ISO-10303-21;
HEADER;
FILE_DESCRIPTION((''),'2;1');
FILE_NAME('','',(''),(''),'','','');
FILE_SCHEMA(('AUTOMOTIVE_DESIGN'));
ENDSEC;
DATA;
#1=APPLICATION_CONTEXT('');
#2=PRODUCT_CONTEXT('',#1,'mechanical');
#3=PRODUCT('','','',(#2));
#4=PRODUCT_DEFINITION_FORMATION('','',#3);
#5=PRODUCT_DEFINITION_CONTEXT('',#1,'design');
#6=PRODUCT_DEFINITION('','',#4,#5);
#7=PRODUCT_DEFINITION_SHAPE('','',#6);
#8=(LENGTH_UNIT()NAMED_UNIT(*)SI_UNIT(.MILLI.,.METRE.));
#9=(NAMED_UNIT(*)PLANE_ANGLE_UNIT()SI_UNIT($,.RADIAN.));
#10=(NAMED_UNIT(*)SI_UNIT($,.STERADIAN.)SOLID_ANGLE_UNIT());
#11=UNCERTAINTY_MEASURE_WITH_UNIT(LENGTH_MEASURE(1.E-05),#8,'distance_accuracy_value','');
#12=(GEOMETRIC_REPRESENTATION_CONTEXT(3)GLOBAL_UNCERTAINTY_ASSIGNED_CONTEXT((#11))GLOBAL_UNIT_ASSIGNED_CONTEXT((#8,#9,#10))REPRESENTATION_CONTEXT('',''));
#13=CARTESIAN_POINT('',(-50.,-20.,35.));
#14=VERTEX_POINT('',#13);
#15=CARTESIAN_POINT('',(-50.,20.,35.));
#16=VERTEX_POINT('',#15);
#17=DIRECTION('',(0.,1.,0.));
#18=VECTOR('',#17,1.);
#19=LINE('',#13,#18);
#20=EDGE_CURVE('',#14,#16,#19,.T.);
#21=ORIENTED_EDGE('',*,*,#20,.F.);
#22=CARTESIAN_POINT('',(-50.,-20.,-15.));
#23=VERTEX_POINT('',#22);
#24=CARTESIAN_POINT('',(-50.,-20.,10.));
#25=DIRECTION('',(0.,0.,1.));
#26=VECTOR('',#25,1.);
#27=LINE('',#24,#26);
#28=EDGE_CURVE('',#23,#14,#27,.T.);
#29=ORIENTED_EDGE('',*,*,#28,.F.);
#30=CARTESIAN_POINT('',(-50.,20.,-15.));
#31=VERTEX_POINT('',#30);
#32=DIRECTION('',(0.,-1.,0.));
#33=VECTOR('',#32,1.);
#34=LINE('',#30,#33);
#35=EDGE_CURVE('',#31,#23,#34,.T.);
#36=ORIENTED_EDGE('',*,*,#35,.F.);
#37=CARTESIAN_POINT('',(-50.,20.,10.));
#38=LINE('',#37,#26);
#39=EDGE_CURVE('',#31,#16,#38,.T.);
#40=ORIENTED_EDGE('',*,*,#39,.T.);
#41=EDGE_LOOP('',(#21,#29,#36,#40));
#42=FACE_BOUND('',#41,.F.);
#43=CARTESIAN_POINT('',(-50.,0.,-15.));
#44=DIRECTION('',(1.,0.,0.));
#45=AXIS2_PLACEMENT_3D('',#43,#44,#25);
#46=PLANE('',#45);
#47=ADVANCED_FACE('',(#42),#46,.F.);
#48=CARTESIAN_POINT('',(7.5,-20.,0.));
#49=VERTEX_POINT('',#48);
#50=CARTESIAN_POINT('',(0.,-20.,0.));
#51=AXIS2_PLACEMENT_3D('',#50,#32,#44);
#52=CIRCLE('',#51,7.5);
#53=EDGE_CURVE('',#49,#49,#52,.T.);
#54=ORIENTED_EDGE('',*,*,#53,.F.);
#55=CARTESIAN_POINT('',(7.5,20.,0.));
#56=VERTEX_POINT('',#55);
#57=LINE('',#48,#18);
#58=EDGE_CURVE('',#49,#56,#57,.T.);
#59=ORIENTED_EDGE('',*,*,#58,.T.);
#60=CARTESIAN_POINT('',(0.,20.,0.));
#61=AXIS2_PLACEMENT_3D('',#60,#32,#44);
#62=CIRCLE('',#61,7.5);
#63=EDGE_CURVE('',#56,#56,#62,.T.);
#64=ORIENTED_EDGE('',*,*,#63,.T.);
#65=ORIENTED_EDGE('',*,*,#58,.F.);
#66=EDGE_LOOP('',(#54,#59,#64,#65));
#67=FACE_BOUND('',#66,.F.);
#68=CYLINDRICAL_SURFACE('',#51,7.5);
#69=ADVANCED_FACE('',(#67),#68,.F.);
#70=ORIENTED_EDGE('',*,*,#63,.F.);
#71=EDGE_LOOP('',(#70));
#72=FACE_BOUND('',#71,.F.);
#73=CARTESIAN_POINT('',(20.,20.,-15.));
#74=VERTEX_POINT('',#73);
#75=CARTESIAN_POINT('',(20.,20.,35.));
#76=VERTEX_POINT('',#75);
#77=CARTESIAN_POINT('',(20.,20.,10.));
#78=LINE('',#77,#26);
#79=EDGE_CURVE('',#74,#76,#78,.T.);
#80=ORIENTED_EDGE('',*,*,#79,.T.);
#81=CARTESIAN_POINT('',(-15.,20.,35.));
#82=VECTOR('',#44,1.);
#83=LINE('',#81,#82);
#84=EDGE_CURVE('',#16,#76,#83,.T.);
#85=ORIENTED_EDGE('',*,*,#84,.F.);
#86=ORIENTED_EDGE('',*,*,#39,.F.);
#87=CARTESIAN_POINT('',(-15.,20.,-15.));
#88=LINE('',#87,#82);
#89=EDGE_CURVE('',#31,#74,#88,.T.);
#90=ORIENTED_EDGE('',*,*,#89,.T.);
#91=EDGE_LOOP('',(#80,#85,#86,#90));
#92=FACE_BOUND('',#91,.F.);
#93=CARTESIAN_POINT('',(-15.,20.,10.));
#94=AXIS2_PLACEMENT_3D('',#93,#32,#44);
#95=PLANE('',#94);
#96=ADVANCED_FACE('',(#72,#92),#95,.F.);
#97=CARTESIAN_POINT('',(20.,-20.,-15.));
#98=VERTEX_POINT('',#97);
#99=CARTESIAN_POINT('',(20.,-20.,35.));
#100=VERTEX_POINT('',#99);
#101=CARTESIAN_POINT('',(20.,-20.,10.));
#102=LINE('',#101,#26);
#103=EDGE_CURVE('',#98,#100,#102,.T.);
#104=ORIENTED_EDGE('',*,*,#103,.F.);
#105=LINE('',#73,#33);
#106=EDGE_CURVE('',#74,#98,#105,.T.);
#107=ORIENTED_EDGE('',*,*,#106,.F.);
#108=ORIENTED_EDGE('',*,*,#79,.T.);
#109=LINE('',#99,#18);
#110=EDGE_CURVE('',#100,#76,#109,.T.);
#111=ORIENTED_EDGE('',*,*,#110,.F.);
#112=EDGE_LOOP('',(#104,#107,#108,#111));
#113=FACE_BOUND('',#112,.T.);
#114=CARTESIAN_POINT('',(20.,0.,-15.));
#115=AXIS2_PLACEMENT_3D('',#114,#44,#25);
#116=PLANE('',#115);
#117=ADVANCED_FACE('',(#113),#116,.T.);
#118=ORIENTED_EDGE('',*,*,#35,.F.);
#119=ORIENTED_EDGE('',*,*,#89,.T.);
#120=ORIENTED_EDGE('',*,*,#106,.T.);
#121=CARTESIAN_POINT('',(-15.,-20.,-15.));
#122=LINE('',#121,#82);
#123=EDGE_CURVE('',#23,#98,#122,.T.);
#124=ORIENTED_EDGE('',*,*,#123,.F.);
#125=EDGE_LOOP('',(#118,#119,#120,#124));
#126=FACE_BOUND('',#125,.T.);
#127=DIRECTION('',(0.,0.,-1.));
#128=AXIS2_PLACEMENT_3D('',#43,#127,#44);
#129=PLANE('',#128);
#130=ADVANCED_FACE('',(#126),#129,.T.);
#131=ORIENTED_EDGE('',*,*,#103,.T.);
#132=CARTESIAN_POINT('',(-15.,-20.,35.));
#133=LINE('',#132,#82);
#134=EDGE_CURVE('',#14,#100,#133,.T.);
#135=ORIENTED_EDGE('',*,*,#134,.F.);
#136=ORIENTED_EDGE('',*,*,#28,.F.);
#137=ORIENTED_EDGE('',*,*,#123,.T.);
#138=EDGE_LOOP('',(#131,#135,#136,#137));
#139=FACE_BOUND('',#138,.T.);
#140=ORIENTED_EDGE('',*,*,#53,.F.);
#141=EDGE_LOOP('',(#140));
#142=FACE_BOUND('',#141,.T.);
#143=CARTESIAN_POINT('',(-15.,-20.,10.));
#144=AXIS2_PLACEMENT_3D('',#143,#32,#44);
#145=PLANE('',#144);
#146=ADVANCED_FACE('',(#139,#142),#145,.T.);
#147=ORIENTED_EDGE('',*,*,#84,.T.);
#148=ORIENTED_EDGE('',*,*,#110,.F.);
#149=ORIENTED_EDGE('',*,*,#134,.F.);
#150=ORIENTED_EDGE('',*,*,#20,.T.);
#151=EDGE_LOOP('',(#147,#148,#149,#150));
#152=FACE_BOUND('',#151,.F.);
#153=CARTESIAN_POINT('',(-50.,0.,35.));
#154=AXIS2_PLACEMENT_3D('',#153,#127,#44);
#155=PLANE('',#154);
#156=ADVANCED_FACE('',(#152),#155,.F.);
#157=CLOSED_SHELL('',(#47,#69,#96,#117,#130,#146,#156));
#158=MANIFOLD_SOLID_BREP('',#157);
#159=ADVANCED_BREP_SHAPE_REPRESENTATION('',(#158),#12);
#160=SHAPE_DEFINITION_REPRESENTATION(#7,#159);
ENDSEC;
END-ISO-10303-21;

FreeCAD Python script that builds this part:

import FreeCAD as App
import Part
import Sketcher

V = App.Vector


def add_polygon(sketch, points):
    """Adds a closed chain of lines whose ends are joined by coincident constraints."""
    first, n = sketch.GeometryCount, len(points)
    for a, b in zip(points, points[1:] + points[:1]):
        sketch.addGeometry(Part.LineSegment(App.Vector(*a, 0), App.Vector(*b, 0)), False)
    for i in range(n):
        sketch.addConstraint(Sketcher.Constraint("Coincident", first + i, 2, first + (i + 1) % n, 1))

doc = App.newDocument("Part")
params = doc.addObject("Spreadsheet::Sheet", "Params")
for row, (alias, value) in enumerate([
    ("sketch1_width", "70 mm"),
    ("sketch1_height", "50 mm"),
    ("pad1_length", "40 mm"),
    ("sketch2_diameter", "15 mm"),
], start=1):
    params.set(f"A{row}", alias)
    params.set(f"B{row}", "=" + value)
    params.setAlias(f"B{row}", alias)

body = doc.addObject("PartDesign::Body", "Body")

# Sketch on XZ plane
sketch1 = body.newObject("Sketcher::SketchObject", "Sketch")
sketch1.AttachmentSupport = (doc.getObject("XZ_Plane"), [""])
sketch1.MapMode = "FlatFace"
add_polygon(sketch1, [(-50, 35), (-50, -15), (20, -15), (20, 35)])  # lines 0-3
sketch1.addConstraint([
    Sketcher.Constraint("Vertical", 0),
    Sketcher.Constraint("Horizontal", 1),
    Sketcher.Constraint("Vertical", 2),
    Sketcher.Constraint("Horizontal", 3),
    Sketcher.Constraint("DistanceX", 1, 1, 1, 2, 70.0),
    Sketcher.Constraint("DistanceY", 0, 2, 0, 1, 50.0),
    Sketcher.Constraint("DistanceX", 0, 2, -1, 1, 50.0),
    Sketcher.Constraint("DistanceY", 0, 2, -1, 1, 15.0),
])
sketch1.setExpression("Constraints[8]", "Params.sketch1_width")
sketch1.setExpression("Constraints[9]", "Params.sketch1_height")
pad1 = body.newObject("PartDesign::Pad", "Pad")
pad1.Profile = sketch1
pad1.setExpression("Length", "Params.pad1_length")
pad1.Midplane = True

# Sketch on XZ plane
sketch2 = body.newObject("Sketcher::SketchObject", "Sketch001")
sketch2.AttachmentSupport = (doc.getObject("XZ_Plane"), [""])
sketch2.MapMode = "FlatFace"
sketch2.AttachmentOffset = App.Placement(V(0, 0, 20), App.Rotation())
sketch2.addGeometry(Part.Circle(V(0, 0, 0), V(0, 0, 1), 7.5), False)
sketch2.addConstraint([
    Sketcher.Constraint("Coincident", 0, 3, -1, 1),
    Sketcher.Constraint("Diameter", 0, 15.0),
])
sketch2.setExpression("Constraints[1]", "Params.sketch2_diameter")
pocket1 = body.newObject("PartDesign::Pocket", "Pocket")
pocket1.Profile = sketch2
pocket1.Type = "ThroughAll"

doc.recompute()
